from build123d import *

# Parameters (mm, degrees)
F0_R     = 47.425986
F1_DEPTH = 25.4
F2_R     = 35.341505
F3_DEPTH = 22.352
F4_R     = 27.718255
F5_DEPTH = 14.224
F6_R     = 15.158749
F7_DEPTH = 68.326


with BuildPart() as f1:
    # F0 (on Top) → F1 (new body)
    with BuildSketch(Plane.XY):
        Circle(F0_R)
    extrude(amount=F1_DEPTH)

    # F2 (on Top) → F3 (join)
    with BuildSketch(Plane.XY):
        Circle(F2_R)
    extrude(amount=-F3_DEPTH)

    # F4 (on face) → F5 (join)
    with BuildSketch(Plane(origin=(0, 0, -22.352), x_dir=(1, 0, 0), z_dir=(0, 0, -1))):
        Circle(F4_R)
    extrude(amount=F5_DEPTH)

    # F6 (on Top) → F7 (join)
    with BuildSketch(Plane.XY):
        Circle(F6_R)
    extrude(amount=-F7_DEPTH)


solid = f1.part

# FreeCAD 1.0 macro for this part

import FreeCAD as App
import Part
import Sketcher

V = App.Vector
Q = App.Units.Quantity

doc = App.newDocument("Part")
body = doc.addObject("PartDesign::Body", "Body")

sketch1 = body.newObject("Sketcher::SketchObject", "Sketch")
sketch1.AttachmentSupport = (doc.getObject("XY_Plane"), [""])
sketch1.MapMode = "FlatFace"
sketch1.addGeometry(Part.Circle(V(0, 0, 0), V(0, 0, 1), 47), False)
sketch1.addConstraint(Sketcher.Constraint("Coincident", 0, 3, -1, 1))
sketch1.addConstraint(Sketcher.Constraint("Diameter", 0, Q("94.851972 mm")))
pad1 = body.newObject("PartDesign::Pad", "Pad")
pad1.Profile = sketch1
pad1.Length = Q("1 in")

sketch2 = body.newObject("Sketcher::SketchObject", "Sketch001")
sketch2.AttachmentSupport = (doc.getObject("XY_Plane"), [""])
sketch2.MapMode = "FlatFace"
sketch2.addGeometry(Part.Circle(V(0, 0, 0), V(0, 0, 1), 35), False)
sketch2.addConstraint(Sketcher.Constraint("Coincident", 0, 3, -1, 1))
sketch2.addConstraint(Sketcher.Constraint("Diameter", 0, Q("70.68301 mm")))
pad2 = body.newObject("PartDesign::Pad", "Pad001")
pad2.Profile = sketch2
pad2.Length = Q("0.88 in")
pad2.Reversed = True

sketch3 = body.newObject("Sketcher::SketchObject", "Sketch002")
sketch3.AttachmentSupport = (doc.getObject("XY_Plane"), [""])
sketch3.MapMode = "FlatFace"
sketch3.AttachmentOffset = App.Placement(V(0, 0, -0.88 * 25.4), App.Rotation())
sketch3.addGeometry(Part.Circle(V(0, 0, 0), V(0, 0, 1), 28), False)
sketch3.addConstraint(Sketcher.Constraint("Coincident", 0, 3, -1, 1))
sketch3.addConstraint(Sketcher.Constraint("Diameter", 0, Q("55.43651 mm")))
pad3 = body.newObject("PartDesign::Pad", "Pad002")
pad3.Profile = sketch3
pad3.Length = Q("0.56 in")
pad3.Reversed = True

sketch4 = body.newObject("Sketcher::SketchObject", "Sketch003")
sketch4.AttachmentSupport = (doc.getObject("XY_Plane"), [""])
sketch4.MapMode = "FlatFace"
sketch4.addGeometry(Part.Circle(V(0, 0, 0), V(0, 0, 1), 15), False)
sketch4.addConstraint(Sketcher.Constraint("Coincident", 0, 3, -1, 1))
sketch4.addConstraint(Sketcher.Constraint("Diameter", 0, Q("30.317498 mm")))
pad4 = body.newObject("PartDesign::Pad", "Pad003")
pad4.Profile = sketch4
pad4.Length = Q("2.69 in")
pad4.Reversed = True

doc.recompute()
